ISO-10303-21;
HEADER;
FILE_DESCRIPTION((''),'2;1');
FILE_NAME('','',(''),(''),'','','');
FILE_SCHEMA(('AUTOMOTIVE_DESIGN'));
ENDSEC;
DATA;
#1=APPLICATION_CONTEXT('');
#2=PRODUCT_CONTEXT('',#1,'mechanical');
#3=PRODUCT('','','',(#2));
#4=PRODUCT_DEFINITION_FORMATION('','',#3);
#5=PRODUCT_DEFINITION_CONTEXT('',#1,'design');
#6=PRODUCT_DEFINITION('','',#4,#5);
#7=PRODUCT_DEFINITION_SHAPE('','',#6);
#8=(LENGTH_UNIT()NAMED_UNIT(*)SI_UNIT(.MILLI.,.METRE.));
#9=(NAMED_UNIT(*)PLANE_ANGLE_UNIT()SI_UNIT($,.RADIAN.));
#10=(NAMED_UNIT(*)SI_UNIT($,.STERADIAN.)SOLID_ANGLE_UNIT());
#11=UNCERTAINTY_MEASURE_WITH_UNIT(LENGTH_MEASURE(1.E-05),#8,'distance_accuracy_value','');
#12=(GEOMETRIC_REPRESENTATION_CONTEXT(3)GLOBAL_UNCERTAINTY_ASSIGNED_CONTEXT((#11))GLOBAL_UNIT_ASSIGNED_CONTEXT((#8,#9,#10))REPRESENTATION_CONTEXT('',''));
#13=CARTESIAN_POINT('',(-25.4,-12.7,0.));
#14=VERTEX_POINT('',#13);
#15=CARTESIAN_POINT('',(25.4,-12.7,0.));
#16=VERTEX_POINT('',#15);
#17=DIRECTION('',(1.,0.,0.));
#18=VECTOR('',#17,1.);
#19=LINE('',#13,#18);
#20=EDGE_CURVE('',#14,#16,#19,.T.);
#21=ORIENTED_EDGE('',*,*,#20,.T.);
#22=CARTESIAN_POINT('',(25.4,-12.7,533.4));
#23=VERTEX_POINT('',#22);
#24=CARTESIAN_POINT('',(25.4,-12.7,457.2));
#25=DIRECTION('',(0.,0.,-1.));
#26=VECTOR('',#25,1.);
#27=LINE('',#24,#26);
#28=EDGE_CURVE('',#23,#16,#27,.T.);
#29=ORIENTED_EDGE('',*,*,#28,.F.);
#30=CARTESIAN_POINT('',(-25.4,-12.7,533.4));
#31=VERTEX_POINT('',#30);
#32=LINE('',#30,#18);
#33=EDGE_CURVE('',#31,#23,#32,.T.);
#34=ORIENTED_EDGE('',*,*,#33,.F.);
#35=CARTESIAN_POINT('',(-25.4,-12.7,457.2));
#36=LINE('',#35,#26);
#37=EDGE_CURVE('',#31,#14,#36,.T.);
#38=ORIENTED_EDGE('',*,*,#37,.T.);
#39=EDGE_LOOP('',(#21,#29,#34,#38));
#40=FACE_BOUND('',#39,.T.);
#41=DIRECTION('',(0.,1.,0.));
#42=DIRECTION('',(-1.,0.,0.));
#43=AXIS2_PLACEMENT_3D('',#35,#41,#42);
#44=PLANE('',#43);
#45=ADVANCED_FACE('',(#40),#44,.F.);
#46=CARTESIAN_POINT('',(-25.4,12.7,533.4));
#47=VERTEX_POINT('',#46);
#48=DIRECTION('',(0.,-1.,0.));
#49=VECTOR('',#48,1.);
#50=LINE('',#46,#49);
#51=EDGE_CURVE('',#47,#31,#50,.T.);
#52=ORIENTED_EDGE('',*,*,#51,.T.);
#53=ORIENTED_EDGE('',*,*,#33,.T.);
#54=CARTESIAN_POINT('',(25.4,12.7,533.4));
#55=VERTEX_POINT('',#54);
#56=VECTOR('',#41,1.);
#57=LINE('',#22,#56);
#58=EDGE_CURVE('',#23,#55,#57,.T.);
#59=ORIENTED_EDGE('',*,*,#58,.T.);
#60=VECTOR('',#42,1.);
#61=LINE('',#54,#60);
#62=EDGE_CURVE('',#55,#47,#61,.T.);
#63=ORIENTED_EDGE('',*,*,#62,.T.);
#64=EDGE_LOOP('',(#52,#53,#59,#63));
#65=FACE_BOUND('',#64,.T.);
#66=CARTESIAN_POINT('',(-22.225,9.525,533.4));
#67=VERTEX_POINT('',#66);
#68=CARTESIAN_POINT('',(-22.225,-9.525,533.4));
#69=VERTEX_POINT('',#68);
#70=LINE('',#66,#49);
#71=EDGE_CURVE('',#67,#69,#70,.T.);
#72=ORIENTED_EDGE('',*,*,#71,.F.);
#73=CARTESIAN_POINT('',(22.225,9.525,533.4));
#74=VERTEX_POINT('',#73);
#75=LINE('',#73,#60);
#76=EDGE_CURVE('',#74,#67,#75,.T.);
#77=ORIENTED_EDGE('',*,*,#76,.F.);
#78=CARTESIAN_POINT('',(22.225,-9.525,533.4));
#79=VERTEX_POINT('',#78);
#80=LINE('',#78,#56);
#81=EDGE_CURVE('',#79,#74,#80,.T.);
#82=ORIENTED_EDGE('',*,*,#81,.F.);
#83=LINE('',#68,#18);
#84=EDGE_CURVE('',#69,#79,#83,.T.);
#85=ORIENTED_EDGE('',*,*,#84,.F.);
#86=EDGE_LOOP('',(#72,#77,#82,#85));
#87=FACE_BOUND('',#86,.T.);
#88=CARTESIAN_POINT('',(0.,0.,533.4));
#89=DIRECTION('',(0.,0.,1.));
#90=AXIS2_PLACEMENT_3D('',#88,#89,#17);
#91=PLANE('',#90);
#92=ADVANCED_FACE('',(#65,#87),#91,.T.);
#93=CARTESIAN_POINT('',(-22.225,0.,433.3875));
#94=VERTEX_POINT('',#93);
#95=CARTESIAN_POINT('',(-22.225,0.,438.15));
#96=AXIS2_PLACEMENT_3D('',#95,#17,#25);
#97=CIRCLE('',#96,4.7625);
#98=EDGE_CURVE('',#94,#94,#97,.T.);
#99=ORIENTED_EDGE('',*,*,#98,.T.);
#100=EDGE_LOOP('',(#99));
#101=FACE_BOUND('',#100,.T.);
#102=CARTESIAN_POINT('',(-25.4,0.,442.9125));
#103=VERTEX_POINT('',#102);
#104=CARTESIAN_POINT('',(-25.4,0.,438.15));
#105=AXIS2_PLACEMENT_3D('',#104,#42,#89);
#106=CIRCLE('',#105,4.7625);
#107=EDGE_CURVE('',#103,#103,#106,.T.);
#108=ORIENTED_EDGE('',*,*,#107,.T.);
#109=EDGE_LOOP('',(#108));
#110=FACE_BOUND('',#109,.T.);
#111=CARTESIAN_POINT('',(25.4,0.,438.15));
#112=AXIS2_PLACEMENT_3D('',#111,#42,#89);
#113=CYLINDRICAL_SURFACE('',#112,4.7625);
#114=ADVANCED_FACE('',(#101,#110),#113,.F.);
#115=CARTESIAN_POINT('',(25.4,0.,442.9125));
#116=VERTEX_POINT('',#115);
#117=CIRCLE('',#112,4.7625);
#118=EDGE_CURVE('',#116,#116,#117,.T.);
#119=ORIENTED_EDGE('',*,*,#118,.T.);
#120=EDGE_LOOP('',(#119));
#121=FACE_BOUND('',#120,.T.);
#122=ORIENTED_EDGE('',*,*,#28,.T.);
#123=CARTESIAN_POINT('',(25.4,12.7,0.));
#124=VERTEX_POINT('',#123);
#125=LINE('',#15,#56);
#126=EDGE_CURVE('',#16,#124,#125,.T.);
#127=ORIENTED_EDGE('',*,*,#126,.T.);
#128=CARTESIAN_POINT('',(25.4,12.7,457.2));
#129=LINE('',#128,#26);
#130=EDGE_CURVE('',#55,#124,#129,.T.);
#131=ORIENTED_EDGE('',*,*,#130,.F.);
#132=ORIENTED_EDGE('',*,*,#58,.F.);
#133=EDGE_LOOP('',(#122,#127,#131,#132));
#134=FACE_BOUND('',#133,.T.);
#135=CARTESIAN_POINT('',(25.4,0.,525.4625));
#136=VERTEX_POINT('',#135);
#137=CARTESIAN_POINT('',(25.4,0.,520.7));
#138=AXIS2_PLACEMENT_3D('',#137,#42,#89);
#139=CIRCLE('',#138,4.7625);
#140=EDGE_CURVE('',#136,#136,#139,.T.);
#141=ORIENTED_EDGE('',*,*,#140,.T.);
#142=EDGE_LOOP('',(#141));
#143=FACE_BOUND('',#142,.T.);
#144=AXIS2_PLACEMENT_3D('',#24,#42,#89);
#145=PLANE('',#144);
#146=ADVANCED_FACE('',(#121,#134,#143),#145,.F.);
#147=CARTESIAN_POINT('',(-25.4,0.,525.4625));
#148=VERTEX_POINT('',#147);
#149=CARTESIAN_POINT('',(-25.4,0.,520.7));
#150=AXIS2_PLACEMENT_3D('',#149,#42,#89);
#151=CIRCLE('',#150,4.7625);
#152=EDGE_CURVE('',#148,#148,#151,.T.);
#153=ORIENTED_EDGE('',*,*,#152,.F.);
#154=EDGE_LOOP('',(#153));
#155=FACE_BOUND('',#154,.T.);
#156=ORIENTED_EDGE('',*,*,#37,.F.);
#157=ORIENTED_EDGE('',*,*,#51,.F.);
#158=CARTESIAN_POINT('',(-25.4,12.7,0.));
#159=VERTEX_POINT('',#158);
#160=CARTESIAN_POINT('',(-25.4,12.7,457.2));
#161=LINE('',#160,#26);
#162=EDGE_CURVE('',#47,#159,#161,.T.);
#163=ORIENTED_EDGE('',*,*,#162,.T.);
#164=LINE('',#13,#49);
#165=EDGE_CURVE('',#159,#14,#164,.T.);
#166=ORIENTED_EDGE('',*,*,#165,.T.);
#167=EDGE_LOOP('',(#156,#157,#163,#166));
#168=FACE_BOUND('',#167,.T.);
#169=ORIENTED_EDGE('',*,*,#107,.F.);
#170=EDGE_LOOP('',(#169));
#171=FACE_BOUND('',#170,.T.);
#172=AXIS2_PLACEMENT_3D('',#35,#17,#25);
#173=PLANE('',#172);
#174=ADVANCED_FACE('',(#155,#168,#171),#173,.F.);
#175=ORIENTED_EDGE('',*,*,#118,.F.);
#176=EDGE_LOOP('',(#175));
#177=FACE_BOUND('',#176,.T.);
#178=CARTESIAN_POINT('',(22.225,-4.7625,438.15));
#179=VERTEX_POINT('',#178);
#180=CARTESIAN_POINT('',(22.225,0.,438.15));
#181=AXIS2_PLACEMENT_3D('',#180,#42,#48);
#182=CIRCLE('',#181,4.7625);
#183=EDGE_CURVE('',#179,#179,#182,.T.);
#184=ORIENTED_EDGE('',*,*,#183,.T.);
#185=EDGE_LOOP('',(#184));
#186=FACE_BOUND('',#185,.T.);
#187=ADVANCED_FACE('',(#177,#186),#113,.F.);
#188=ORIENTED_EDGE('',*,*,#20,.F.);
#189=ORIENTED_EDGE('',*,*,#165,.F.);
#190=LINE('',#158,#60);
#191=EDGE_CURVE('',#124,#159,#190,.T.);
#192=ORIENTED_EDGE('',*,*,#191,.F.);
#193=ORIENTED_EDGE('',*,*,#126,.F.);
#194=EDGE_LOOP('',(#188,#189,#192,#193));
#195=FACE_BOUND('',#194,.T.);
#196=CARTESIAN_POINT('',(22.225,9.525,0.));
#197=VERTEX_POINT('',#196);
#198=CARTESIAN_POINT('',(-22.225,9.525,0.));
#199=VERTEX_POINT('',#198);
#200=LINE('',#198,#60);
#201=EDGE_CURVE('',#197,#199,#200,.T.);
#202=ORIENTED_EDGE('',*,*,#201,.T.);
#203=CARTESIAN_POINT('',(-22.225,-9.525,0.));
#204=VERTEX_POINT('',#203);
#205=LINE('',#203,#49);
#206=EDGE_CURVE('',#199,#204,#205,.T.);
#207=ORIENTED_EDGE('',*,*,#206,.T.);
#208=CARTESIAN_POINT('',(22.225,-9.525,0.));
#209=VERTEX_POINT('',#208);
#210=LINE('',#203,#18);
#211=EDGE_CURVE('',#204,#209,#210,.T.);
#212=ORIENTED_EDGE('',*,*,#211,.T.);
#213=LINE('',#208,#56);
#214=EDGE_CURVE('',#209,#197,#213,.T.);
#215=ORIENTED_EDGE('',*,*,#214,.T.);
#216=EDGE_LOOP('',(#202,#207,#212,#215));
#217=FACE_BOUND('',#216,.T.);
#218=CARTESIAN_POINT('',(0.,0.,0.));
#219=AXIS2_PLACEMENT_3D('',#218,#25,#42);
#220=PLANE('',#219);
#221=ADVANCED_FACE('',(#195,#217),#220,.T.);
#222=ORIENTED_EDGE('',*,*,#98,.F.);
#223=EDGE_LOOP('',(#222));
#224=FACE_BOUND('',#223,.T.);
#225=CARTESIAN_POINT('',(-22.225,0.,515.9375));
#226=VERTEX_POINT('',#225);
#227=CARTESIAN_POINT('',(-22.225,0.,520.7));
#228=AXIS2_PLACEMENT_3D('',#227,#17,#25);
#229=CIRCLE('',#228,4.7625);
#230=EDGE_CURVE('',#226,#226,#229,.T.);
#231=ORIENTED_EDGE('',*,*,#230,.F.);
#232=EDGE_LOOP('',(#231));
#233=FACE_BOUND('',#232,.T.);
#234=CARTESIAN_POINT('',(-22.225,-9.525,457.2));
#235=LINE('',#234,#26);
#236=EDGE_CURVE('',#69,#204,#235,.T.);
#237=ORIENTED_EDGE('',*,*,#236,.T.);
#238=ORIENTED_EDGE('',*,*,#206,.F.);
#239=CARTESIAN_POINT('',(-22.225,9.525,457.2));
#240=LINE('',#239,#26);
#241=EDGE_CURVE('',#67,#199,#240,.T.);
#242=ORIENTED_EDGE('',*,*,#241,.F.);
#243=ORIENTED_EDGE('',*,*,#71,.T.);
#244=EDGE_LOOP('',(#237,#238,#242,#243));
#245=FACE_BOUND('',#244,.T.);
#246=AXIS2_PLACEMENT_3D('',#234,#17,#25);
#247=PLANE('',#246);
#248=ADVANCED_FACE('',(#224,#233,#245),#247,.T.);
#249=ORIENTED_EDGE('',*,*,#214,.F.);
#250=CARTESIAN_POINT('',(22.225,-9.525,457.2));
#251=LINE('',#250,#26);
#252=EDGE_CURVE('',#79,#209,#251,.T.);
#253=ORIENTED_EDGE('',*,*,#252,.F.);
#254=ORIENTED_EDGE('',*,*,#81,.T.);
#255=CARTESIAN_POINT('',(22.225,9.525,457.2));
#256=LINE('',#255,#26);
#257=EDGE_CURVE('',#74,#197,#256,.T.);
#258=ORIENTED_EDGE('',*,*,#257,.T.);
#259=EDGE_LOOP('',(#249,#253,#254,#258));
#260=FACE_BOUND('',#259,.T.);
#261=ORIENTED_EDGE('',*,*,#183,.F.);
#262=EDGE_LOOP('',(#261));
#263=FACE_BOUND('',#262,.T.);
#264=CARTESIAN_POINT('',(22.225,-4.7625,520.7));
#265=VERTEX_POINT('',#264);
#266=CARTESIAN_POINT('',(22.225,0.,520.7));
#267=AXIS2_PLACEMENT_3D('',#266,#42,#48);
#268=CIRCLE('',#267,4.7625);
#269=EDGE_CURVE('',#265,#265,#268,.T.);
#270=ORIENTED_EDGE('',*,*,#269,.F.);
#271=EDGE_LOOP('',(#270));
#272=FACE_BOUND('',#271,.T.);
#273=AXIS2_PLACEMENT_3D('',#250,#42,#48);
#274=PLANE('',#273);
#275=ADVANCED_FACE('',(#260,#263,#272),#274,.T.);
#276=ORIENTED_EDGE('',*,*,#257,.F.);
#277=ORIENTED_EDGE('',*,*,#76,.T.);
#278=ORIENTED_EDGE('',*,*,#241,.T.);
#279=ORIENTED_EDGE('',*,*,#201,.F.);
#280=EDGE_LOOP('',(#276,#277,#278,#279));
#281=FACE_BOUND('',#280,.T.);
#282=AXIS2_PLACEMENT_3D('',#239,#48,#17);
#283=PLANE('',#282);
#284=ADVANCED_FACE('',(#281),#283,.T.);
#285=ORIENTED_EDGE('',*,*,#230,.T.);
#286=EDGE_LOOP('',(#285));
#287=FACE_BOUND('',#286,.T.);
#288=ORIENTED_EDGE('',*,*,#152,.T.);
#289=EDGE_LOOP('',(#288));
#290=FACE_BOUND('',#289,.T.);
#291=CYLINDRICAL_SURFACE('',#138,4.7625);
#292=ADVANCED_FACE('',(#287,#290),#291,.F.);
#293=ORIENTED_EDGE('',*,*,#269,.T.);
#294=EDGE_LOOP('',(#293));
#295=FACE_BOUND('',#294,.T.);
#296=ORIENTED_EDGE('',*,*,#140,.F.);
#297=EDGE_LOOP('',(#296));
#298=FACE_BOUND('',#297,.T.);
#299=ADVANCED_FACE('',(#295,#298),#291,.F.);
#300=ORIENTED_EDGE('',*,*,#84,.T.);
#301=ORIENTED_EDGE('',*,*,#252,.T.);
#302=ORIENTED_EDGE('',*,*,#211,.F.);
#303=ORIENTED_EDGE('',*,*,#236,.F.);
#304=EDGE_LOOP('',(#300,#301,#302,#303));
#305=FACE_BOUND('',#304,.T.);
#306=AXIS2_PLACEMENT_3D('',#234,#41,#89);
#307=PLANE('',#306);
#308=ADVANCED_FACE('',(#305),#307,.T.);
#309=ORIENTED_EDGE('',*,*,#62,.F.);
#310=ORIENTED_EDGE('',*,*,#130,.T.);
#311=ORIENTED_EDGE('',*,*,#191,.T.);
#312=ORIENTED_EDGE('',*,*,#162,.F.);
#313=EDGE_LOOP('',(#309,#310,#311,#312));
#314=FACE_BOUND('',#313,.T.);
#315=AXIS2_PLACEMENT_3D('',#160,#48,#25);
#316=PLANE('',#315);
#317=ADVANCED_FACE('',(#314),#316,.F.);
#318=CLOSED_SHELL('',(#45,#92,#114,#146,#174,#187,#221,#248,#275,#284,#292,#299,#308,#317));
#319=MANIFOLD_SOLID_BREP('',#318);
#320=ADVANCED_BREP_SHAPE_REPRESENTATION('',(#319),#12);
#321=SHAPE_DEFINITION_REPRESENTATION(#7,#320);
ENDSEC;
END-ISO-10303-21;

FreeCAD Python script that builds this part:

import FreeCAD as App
import Part
import Sketcher
Q = App.Units.Quantity


def add_polygon(sketch, points):
    """Adds a closed chain of lines whose ends are joined by coincident constraints."""
    first, n = sketch.GeometryCount, len(points)
    for a, b in zip(points, points[1:] + points[:1]):
        sketch.addGeometry(Part.LineSegment(App.Vector(*a, 0), App.Vector(*b, 0)), False)
    for i in range(n):
        sketch.addConstraint(Sketcher.Constraint("Coincident", first + i, 2, first + (i + 1) % n, 1))

doc = App.newDocument("Part")
params = doc.addObject("Spreadsheet::Sheet", "Params")
for row, (alias, value) in enumerate([
    ("sketch1_width", "2 in"),
    ("sketch1_height", "1 in"),
    ("sketch1_width2", "1.75 in"),
    ("sketch1_height2", "0.75 in"),
    ("pad1_length", "18 in"),
    ("sketch2_diameter", "0.375 in"),
    ("sketch3_width", "2 in"),
    ("sketch3_height", "1 in"),
    ("sketch3_width2", "1.75 in"),
    ("sketch3_height2", "0.75 in"),
    ("pad2_length", "3 in"),
    ("sketch4_diameter", "0.375 in"),
], start=1):
    params.set(f"A{row}", alias)
    params.set(f"B{row}", "=" + value)
    params.setAlias(f"B{row}", alias)

body = doc.addObject("PartDesign::Body", "Body")

# Sketch on XY plane
sketch1 = body.newObject("Sketcher::SketchObject", "Sketch")
sketch1.AttachmentSupport = (doc.getObject("XY_Plane"), [""])
sketch1.MapMode = "FlatFace"
add_polygon(sketch1, [(-25.4, 12.7), (-25.4, -12.7), (25.4, -12.7), (25.4, 12.7)])  # lines 0-3
add_polygon(sketch1, [(22.225, -9.525), (-22.225, -9.525), (-22.225, 9.525), (22.225, 9.525)])  # lines 4-7
sketch1.addConstraint(Sketcher.Constraint("Vertical", 0))
sketch1.addConstraint(Sketcher.Constraint("Horizontal", 1))
sketch1.addConstraint(Sketcher.Constraint("Vertical", 2))
sketch1.addConstraint(Sketcher.Constraint("Horizontal", 3))
sketch1.addConstraint(Sketcher.Constraint("Horizontal", 4))
sketch1.addConstraint(Sketcher.Constraint("Vertical", 5))
sketch1.addConstraint(Sketcher.Constraint("Horizontal", 6))
sketch1.addConstraint(Sketcher.Constraint("Vertical", 7))
sketch1.addConstraint(Sketcher.Constraint("Symmetric", 0, 2, 2, 2, -1, 1))
sketch1.addConstraint(Sketcher.Constraint("Symmetric", 4, 2, 6, 2, -1, 1))
sketch1.addConstraint(Sketcher.Constraint("DistanceX", 1, 1, 1, 2, Q("2 in")))
sketch1.addConstraint(Sketcher.Constraint("DistanceY", 0, 2, 0, 1, Q("1 in")))
sketch1.addConstraint(Sketcher.Constraint("DistanceX", 4, 2, 4, 1, Q("1.75 in")))
sketch1.addConstraint(Sketcher.Constraint("DistanceY", 5, 1, 5, 2, Q("0.75 in")))
sketch1.setExpression("Constraints[18]", "Params.sketch1_width")
sketch1.setExpression("Constraints[19]", "Params.sketch1_height")
sketch1.setExpression("Constraints[20]", "Params.sketch1_width2")
sketch1.setExpression("Constraints[21]", "Params.sketch1_height2")
pad1 = body.newObject("PartDesign::Pad", "Pad")
pad1.Profile = sketch1
pad1.setExpression("Length", "Params.pad1_length")

# Sketch on YZ plane
sketch2 = body.newObject("Sketcher::SketchObject", "Sketch001")
sketch2.AttachmentSupport = (doc.getObject("YZ_Plane"), [""])
sketch2.MapMode = "FlatFace"
sketch2.AttachmentOffset = App.Placement(App.Vector(0, 0, -1 * 25.4), App.Rotation())
sketch2.addGeometry(Part.Circle(App.Vector(0, 438.15, 0), App.Vector(0, 0, 1), 4.7625), False)
sketch2.addConstraint(Sketcher.Constraint("PointOnObject", 0, 3, -2))
sketch2.addConstraint(Sketcher.Constraint("Diameter", 0, Q("0.375 in")))
sketch2.addConstraint(Sketcher.Constraint("DistanceY", -1, 1, 0, 3, Q("17.25 in")))
sketch2.setExpression("Constraints[1]", "Params.sketch2_diameter")
pocket1 = body.newObject("PartDesign::Pocket", "Pocket")
pocket1.Profile = sketch2
pocket1.Type = "ThroughAll"
pocket1.Reversed = True

# Sketch on XY plane
sketch3 = body.newObject("Sketcher::SketchObject", "Sketch002")
sketch3.AttachmentSupport = (doc.getObject("XY_Plane"), [""])
sketch3.MapMode = "FlatFace"
sketch3.AttachmentOffset = App.Placement(App.Vector(0, 0, 18 * 25.4), App.Rotation())
add_polygon(sketch3, [(-25.4, 12.7), (-25.4, -12.7), (25.4, -12.7), (25.4, 12.7)])  # lines 0-3
add_polygon(sketch3, [(22.225, -9.525), (-22.225, -9.525), (-22.225, 9.525), (22.225, 9.525)])  # lines 4-7
sketch3.addConstraint(Sketcher.Constraint("Vertical", 0))
sketch3.addConstraint(Sketcher.Constraint("Horizontal", 1))
sketch3.addConstraint(Sketcher.Constraint("Vertical", 2))
sketch3.addConstraint(Sketcher.Constraint("Horizontal", 3))
sketch3.addConstraint(Sketcher.Constraint("Horizontal", 4))
sketch3.addConstraint(Sketcher.Constraint("Vertical", 5))
sketch3.addConstraint(Sketcher.Constraint("Horizontal", 6))
sketch3.addConstraint(Sketcher.Constraint("Vertical", 7))
sketch3.addConstraint(Sketcher.Constraint("Symmetric", 0, 2, 2, 2, -1, 1))
sketch3.addConstraint(Sketcher.Constraint("Symmetric", 4, 2, 6, 2, -1, 1))
sketch3.addConstraint(Sketcher.Constraint("DistanceX", 1, 1, 1, 2, Q("2 in")))
sketch3.addConstraint(Sketcher.Constraint("DistanceY", 0, 2, 0, 1, Q("1 in")))
sketch3.addConstraint(Sketcher.Constraint("DistanceX", 4, 2, 4, 1, Q("1.75 in")))
sketch3.addConstraint(Sketcher.Constraint("DistanceY", 5, 1, 5, 2, Q("0.75 in")))
sketch3.setExpression("Constraints[18]", "Params.sketch3_width")
sketch3.setExpression("Constraints[19]", "Params.sketch3_height")
sketch3.setExpression("Constraints[20]", "Params.sketch3_width2")
sketch3.setExpression("Constraints[21]", "Params.sketch3_height2")
pad2 = body.newObject("PartDesign::Pad", "Pad001")
pad2.Profile = sketch3
pad2.setExpression("Length", "Params.pad2_length")

# Sketch on YZ plane
sketch4 = body.newObject("Sketcher::SketchObject", "Sketch003")
sketch4.AttachmentSupport = (doc.getObject("YZ_Plane"), [""])
sketch4.MapMode = "FlatFace"
sketch4.AttachmentOffset = App.Placement(App.Vector(0, 0, -1 * 25.4), App.Rotation())
sketch4.addGeometry(Part.Circle(App.Vector(0, 520.7, 0), App.Vector(0, 0, 1), 4.7625), False)
sketch4.addConstraint(Sketcher.Constraint("PointOnObject", 0, 3, -2))
sketch4.addConstraint(Sketcher.Constraint("Diameter", 0, Q("0.375 in")))
sketch4.addConstraint(Sketcher.Constraint("DistanceY", -1, 1, 0, 3, Q("20.5 in")))
sketch4.setExpression("Constraints[1]", "Params.sketch4_diameter")
pocket2 = body.newObject("PartDesign::Pocket", "Pocket001")
pocket2.Profile = sketch4
pocket2.Type = "ThroughAll"
pocket2.Reversed = True

doc.recompute()
